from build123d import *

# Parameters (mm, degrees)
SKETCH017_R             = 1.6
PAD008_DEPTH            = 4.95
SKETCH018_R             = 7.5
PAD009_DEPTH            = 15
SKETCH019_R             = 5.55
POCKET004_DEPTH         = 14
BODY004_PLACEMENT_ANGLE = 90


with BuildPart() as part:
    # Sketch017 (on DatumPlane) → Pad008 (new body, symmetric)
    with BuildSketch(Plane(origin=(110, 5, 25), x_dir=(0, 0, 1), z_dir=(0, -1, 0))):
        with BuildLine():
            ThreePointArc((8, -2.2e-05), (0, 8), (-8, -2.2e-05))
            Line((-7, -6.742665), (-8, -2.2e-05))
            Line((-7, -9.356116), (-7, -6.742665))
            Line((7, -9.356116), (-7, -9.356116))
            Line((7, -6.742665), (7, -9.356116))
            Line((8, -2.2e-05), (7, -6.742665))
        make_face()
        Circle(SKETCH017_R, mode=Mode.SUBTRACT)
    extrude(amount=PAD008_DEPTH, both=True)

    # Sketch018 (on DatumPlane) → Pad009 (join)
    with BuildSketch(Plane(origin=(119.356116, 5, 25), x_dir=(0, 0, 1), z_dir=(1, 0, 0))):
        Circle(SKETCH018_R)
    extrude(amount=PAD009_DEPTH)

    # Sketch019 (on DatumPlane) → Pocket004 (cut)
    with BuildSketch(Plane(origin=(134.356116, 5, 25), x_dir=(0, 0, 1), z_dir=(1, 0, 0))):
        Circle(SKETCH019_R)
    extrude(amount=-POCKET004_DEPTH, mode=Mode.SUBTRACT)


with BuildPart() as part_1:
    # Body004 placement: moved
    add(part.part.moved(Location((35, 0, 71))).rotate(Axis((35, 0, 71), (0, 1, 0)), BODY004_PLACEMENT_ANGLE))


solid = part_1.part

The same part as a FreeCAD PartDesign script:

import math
import FreeCAD as App
import Part
import Sketcher

V = App.Vector

doc = App.newDocument("Part")
body = doc.addObject("PartDesign::Body", "Body")

sketch1 = body.newObject("Sketcher::SketchObject", "Sketch")
sketch1.AttachmentSupport = (doc.getObject("XZ_Plane"), [""])
sketch1.MapMode = "FlatFace"
sketch1.AttachmentOffset = App.Placement(V(0, 0, -5), App.Rotation())
sketch1.addGeometry(Part.ArcOfCircle(Part.Circle(V(110, 25, 0), V(0, 0, 1), 8), math.radians(89.999842), math.radians(270.000158)), False)
sketch1.addGeometry(Part.LineSegment(V(110.000022, 17, 0), V(116.742665, 18, 0)), False)
sketch1.addGeometry(Part.LineSegment(V(116.742665, 18, 0), V(119.356116, 18, 0)), False)
sketch1.addGeometry(Part.LineSegment(V(119.356116, 18, 0), V(119.356116, 32, 0)), False)
sketch1.addGeometry(Part.LineSegment(V(119.356116, 32, 0), V(116.742665, 32, 0)), False)
sketch1.addGeometry(Part.LineSegment(V(116.742665, 32, 0), V(110.000022, 33, 0)), False)
sketch1.addGeometry(Part.Circle(V(110, 25, 0), V(0, 0, 1), 1.6), False)
sketch1.addConstraint(Sketcher.Constraint("Coincident", 0, 2, 1, 1))
sketch1.addConstraint(Sketcher.Constraint("Coincident", 1, 2, 2, 1))
sketch1.addConstraint(Sketcher.Constraint("Coincident", 2, 2, 3, 1))
sketch1.addConstraint(Sketcher.Constraint("Coincident", 3, 2, 4, 1))
sketch1.addConstraint(Sketcher.Constraint("Coincident", 4, 2, 5, 1))
sketch1.addConstraint(Sketcher.Constraint("Coincident", 5, 2, 0, 1))
sketch1.addConstraint(Sketcher.Constraint("Horizontal", 2))
sketch1.addConstraint(Sketcher.Constraint("Vertical", 3))
sketch1.addConstraint(Sketcher.Constraint("Horizontal", 4))
sketch1.addConstraint(Sketcher.Constraint("Coincident", 6, 3, 0, 3))
sketch1.addConstraint(Sketcher.Constraint("Vertical", 1, 2, 4, 2))
sketch1.addConstraint(Sketcher.Constraint("Vertical", 0, 2, 5, 2))
sketch1.addConstraint(Sketcher.Constraint("Equal", 1, 5))
sketch1.addConstraint(Sketcher.Constraint("Radius", 0, 8.0))
sketch1.addConstraint(Sketcher.Constraint("Diameter", 6, 3.2))
sketch1.addConstraint(Sketcher.Constraint("DistanceY", 3, 1, 3, 2, 14.0))
sketch1.addConstraint(Sketcher.Constraint("DistanceX", -1, 1, 0, 3, 110.0))
sketch1.addConstraint(Sketcher.Constraint("DistanceY", -1, 1, 0, 3, 25.0))
sketch1.addConstraint(Sketcher.Constraint("DistanceX", 2, 1, 2, 2, 2.613451))
sketch1.addConstraint(Sketcher.Constraint("DistanceX", -1, 1, 0, 2, 110.000022))
sketch1.addConstraint(Sketcher.Constraint("Distance", 1, 6.816395))
pad1 = body.newObject("PartDesign::Pad", "Pad")
pad1.Profile = sketch1
pad1.Length = 9.9
pad1.Midplane = True

sketch2 = body.newObject("Sketcher::SketchObject", "Sketch001")
sketch2.AttachmentSupport = (doc.getObject("YZ_Plane"), [""])
sketch2.MapMode = "FlatFace"
sketch2.AttachmentOffset = App.Placement(V(0, 0, 119.356116), App.Rotation())
sketch2.addGeometry(Part.Circle(V(5, 25, 0), V(0, 0, 1), 7.5), False)
sketch2.addConstraint(Sketcher.Constraint("Diameter", 0, 15.0))
sketch2.addConstraint(Sketcher.Constraint("DistanceX", -1, 1, 0, 3, 5.0))
sketch2.addConstraint(Sketcher.Constraint("DistanceY", -1, 1, 0, 3, 25.0))
pad2 = body.newObject("PartDesign::Pad", "Pad001")
pad2.Profile = sketch2
pad2.Length = 15

sketch3 = body.newObject("Sketcher::SketchObject", "Sketch002")
sketch3.AttachmentSupport = (doc.getObject("YZ_Plane"), [""])
sketch3.MapMode = "FlatFace"
sketch3.AttachmentOffset = App.Placement(V(0, 0, 134.356116), App.Rotation())
sketch3.addGeometry(Part.Circle(V(5, 25, 0), V(0, 0, 1), 5.55), False)
sketch3.addConstraint(Sketcher.Constraint("Diameter", 0, 11.1))
sketch3.addConstraint(Sketcher.Constraint("DistanceX", -1, 1, 0, 3, 5.0))
sketch3.addConstraint(Sketcher.Constraint("DistanceY", -1, 1, 0, 3, 25.0))
pocket1 = body.newObject("PartDesign::Pocket", "Pocket")
pocket1.Profile = sketch3
pocket1.Length = 14
body2 = doc.addObject("PartDesign::Body", "Body001")
doc.recompute()

body.Placement = App.Placement(V(35, 0, 71), App.Rotation(V(0, 1, 0), 90))
boolean = body2.newObject("PartDesign::Boolean", "Boolean")
boolean.Type = "Fuse"
boolean.addObjects([body])

doc.recompute()
